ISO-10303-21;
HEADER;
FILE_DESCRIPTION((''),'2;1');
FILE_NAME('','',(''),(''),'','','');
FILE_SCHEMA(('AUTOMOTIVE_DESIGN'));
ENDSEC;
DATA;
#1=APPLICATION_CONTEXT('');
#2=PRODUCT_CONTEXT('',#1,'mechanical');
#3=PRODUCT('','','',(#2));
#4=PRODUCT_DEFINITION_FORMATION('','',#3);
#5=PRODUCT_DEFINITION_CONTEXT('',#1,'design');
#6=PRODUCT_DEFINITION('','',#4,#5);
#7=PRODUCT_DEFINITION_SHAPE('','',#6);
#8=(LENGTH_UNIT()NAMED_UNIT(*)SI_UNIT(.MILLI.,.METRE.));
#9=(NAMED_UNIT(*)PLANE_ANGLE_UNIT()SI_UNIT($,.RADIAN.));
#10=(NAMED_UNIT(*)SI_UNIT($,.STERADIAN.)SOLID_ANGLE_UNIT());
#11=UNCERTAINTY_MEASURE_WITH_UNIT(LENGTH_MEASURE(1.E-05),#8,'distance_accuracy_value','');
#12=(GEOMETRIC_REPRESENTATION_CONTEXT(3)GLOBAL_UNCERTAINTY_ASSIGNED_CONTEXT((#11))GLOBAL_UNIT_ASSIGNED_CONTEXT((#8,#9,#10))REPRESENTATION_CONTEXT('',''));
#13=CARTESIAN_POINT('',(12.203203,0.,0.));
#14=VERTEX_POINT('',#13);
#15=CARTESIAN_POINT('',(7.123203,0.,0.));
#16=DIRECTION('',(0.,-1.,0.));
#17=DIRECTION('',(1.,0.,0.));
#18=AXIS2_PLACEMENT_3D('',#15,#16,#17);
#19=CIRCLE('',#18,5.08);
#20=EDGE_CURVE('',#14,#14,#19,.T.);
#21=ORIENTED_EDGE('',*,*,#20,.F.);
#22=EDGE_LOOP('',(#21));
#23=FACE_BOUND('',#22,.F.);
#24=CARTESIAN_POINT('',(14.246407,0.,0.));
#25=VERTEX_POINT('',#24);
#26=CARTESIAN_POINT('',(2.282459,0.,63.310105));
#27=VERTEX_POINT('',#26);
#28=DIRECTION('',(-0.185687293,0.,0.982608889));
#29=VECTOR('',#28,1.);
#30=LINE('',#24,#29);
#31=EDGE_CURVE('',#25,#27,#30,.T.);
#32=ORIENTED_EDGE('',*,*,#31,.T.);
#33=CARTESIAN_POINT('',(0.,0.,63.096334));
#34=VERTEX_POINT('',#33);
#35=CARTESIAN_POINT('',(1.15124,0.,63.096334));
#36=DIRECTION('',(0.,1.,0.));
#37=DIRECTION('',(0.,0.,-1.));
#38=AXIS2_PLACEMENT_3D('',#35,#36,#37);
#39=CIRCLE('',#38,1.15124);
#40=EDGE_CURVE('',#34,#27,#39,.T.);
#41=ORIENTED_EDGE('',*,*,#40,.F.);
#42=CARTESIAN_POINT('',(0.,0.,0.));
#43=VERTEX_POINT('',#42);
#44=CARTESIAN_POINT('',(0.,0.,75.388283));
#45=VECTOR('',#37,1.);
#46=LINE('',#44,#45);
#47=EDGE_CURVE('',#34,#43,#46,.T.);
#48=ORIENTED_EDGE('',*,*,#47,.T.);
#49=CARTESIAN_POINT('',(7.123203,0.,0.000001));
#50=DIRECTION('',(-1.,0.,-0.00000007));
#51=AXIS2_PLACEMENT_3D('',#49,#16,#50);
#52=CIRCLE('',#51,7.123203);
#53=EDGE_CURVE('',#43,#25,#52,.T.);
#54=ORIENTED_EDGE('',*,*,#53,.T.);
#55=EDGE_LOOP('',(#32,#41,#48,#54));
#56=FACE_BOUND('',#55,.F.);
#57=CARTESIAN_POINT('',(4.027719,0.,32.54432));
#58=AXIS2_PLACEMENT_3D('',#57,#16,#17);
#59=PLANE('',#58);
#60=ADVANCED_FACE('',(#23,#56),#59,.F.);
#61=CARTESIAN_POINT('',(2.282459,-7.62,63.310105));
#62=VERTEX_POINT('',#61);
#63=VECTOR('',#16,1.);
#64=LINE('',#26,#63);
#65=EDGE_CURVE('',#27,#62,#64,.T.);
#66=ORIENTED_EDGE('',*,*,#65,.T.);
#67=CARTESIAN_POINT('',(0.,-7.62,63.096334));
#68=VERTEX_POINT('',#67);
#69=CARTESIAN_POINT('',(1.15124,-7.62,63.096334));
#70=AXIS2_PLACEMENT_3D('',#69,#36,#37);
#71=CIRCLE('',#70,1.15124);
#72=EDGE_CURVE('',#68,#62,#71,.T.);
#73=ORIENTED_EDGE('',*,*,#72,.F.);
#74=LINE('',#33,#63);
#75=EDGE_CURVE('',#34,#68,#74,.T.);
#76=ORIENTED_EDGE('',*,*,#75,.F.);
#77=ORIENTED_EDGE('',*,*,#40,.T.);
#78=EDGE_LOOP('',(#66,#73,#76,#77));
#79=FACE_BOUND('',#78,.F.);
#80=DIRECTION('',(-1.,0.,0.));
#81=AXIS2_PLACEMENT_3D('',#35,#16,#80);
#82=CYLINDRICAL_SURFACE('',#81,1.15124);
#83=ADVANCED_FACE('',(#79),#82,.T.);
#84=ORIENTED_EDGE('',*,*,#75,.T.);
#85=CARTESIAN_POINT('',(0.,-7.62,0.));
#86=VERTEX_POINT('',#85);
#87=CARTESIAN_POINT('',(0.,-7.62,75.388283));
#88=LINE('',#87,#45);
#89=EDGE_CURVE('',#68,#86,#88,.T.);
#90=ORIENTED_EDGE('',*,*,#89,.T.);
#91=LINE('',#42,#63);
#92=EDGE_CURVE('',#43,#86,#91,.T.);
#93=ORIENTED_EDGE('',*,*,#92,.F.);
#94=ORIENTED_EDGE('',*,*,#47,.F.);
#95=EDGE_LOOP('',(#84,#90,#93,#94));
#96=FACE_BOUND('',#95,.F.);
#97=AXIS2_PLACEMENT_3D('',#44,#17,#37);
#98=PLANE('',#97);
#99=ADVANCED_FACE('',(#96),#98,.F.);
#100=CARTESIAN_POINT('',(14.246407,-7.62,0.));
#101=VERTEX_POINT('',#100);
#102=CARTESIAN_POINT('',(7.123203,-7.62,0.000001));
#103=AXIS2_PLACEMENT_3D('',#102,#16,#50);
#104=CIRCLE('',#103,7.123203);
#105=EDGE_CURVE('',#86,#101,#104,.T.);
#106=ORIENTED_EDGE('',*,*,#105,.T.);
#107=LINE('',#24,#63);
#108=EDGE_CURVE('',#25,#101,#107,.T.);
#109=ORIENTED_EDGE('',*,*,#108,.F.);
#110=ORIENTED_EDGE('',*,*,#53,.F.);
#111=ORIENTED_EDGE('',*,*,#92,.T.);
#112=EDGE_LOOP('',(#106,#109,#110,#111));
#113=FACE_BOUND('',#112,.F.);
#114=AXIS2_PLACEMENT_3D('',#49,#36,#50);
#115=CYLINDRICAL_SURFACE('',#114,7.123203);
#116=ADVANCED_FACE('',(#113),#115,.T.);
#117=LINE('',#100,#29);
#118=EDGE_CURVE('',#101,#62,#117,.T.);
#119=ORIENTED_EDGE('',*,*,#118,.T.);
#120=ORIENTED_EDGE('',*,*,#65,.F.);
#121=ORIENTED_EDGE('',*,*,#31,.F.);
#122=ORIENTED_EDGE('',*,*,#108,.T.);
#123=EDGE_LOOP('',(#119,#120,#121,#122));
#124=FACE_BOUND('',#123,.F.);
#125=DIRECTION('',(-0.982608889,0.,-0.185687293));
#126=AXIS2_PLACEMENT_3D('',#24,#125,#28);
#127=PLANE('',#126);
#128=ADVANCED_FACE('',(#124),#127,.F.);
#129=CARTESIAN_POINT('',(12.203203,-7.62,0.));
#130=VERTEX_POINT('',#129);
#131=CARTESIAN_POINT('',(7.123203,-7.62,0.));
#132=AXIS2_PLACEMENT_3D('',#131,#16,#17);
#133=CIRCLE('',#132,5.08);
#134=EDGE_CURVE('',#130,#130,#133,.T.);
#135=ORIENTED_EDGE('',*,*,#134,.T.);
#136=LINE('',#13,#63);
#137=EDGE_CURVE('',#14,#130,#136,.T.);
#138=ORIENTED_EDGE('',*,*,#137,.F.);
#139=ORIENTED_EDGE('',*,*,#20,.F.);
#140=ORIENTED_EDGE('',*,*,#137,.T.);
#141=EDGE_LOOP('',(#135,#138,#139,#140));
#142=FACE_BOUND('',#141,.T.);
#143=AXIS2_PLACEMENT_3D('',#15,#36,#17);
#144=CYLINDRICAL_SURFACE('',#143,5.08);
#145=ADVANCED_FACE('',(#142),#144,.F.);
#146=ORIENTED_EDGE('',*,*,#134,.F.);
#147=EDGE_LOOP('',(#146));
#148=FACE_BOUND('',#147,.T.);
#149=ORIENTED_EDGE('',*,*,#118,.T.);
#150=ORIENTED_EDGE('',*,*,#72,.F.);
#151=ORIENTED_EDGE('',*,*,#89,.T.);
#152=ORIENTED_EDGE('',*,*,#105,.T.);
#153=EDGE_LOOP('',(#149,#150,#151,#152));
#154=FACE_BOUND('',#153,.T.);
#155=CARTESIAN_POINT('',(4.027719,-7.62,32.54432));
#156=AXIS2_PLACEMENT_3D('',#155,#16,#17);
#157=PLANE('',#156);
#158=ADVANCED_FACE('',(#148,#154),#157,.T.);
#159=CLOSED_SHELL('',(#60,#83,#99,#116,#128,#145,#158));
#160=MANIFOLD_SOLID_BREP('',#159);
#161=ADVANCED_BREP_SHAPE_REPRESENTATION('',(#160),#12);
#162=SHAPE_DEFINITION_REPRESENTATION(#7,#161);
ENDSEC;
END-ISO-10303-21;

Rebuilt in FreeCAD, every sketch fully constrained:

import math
import FreeCAD as App
import Part
import Sketcher
from FreeCAD import Vector
Q = App.Units.Quantity


def edges_at(feature, points):
    """Names of the edges that pass closest to the given points."""
    edges = feature.Shape.Edges
    near = lambda p: min(range(len(edges)), key=lambda i: edges[i].distToShape(Part.Vertex(*p))[0])
    return sorted({f"Edge{near(p) + 1}" for p in points})

doc = App.newDocument("Part")
body = doc.addObject("PartDesign::Body", "Body")

# Sketch on XZ plane
sketch1 = doc.addObject("Sketcher::SketchObject", "Sketch")
body.addObject(sketch1)
sketch1.AttachmentSupport = (doc.XZ_Plane, [""])
sketch1.MapMode = "FlatFace"
sketch1.addGeometry([
    Part.LineSegment(Vector(0, 75, 0), Vector(0, 0, 0)),
    Part.ArcOfCircle(Part.Circle(Vector(7, 0, 0), Vector(0, 0, 1), 7), math.radians(-180), math.radians(0)),
    Part.LineSegment(Vector(14, 0, 0), Vector(0, 75, 0)),
    Part.Circle(Vector(7, 0, 0), Vector(0, 0, 1), 5),
], False)
sketch1.addConstraint([
    Sketcher.Constraint("Tangent", 0, 2, 1, 1),
    Sketcher.Constraint("Coincident", 1, 2, 2, 1),
    Sketcher.Constraint("Coincident", 2, 2, 0, 1),
    Sketcher.Constraint("Vertical", 0),
    Sketcher.Constraint("Coincident", 0, 2, -1, 1),
    Sketcher.Constraint("Coincident", 3, 3, 1, 3),
    Sketcher.Constraint("PointOnObject", 1, 2, -1),
    Sketcher.Constraint("Diameter", 3, Q("0.4 in")),
    Sketcher.Constraint("Radius", 1, Q("7.123203 mm")),
    Sketcher.Constraint("DistanceY", 0, 2, 0, 1, Q("75.388283 mm")),
])
pad1 = doc.addObject("PartDesign::Pad", "Pad")
body.addObject(pad1)
pad1.Profile = sketch1
pad1.Length = Q("0.3 in")
doc.recompute()

fillet = doc.addObject("PartDesign::Fillet", "Fillet")
body.addObject(fillet)
fillet.Base = (pad1, edges_at(pad1, [(0, -3.81, 75.388)]))
fillet.Radius = 1.15124

doc.recompute()
